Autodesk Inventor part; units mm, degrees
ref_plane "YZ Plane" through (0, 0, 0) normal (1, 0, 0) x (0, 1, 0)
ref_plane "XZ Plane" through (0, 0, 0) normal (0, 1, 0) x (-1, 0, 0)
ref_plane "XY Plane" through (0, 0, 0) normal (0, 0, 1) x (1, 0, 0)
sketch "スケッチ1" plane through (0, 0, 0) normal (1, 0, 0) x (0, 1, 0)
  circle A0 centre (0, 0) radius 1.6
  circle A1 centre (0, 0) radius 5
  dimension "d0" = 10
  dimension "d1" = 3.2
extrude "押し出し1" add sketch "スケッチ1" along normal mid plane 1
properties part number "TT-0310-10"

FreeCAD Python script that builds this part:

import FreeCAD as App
import Part
import Sketcher
from FreeCAD import Vector
Q = App.Units.Quantity

doc = App.newDocument("Part")
body = doc.addObject("PartDesign::Body", "Body")

sketch1 = body.newObject("Sketcher::SketchObject", "Sketch")
sketch1.AttachmentSupport = (doc.getObject("YZ_Plane"), [""])
sketch1.MapMode = "FlatFace"
sketch1.addGeometry([
    Part.Circle(Vector(0, 0, 0), Vector(0, 0, 1), 5),
    Part.Circle(Vector(0, 0, 0), Vector(0, 0, 1), 1.6),
], False)
sketch1.addConstraint([
    Sketcher.Constraint("Coincident", 0, 3, -1, 1),
    Sketcher.Constraint("Coincident", 1, 3, -1, 1),
    Sketcher.Constraint("Diameter", 0, Q("10 mm")),
    Sketcher.Constraint("Diameter", 1, Q("3.2 mm")),
])
pad1 = body.newObject("PartDesign::Pad", "Pad")
pad1.Profile = sketch1
pad1.Length = 1
pad1.Midplane = True

doc.recompute()
